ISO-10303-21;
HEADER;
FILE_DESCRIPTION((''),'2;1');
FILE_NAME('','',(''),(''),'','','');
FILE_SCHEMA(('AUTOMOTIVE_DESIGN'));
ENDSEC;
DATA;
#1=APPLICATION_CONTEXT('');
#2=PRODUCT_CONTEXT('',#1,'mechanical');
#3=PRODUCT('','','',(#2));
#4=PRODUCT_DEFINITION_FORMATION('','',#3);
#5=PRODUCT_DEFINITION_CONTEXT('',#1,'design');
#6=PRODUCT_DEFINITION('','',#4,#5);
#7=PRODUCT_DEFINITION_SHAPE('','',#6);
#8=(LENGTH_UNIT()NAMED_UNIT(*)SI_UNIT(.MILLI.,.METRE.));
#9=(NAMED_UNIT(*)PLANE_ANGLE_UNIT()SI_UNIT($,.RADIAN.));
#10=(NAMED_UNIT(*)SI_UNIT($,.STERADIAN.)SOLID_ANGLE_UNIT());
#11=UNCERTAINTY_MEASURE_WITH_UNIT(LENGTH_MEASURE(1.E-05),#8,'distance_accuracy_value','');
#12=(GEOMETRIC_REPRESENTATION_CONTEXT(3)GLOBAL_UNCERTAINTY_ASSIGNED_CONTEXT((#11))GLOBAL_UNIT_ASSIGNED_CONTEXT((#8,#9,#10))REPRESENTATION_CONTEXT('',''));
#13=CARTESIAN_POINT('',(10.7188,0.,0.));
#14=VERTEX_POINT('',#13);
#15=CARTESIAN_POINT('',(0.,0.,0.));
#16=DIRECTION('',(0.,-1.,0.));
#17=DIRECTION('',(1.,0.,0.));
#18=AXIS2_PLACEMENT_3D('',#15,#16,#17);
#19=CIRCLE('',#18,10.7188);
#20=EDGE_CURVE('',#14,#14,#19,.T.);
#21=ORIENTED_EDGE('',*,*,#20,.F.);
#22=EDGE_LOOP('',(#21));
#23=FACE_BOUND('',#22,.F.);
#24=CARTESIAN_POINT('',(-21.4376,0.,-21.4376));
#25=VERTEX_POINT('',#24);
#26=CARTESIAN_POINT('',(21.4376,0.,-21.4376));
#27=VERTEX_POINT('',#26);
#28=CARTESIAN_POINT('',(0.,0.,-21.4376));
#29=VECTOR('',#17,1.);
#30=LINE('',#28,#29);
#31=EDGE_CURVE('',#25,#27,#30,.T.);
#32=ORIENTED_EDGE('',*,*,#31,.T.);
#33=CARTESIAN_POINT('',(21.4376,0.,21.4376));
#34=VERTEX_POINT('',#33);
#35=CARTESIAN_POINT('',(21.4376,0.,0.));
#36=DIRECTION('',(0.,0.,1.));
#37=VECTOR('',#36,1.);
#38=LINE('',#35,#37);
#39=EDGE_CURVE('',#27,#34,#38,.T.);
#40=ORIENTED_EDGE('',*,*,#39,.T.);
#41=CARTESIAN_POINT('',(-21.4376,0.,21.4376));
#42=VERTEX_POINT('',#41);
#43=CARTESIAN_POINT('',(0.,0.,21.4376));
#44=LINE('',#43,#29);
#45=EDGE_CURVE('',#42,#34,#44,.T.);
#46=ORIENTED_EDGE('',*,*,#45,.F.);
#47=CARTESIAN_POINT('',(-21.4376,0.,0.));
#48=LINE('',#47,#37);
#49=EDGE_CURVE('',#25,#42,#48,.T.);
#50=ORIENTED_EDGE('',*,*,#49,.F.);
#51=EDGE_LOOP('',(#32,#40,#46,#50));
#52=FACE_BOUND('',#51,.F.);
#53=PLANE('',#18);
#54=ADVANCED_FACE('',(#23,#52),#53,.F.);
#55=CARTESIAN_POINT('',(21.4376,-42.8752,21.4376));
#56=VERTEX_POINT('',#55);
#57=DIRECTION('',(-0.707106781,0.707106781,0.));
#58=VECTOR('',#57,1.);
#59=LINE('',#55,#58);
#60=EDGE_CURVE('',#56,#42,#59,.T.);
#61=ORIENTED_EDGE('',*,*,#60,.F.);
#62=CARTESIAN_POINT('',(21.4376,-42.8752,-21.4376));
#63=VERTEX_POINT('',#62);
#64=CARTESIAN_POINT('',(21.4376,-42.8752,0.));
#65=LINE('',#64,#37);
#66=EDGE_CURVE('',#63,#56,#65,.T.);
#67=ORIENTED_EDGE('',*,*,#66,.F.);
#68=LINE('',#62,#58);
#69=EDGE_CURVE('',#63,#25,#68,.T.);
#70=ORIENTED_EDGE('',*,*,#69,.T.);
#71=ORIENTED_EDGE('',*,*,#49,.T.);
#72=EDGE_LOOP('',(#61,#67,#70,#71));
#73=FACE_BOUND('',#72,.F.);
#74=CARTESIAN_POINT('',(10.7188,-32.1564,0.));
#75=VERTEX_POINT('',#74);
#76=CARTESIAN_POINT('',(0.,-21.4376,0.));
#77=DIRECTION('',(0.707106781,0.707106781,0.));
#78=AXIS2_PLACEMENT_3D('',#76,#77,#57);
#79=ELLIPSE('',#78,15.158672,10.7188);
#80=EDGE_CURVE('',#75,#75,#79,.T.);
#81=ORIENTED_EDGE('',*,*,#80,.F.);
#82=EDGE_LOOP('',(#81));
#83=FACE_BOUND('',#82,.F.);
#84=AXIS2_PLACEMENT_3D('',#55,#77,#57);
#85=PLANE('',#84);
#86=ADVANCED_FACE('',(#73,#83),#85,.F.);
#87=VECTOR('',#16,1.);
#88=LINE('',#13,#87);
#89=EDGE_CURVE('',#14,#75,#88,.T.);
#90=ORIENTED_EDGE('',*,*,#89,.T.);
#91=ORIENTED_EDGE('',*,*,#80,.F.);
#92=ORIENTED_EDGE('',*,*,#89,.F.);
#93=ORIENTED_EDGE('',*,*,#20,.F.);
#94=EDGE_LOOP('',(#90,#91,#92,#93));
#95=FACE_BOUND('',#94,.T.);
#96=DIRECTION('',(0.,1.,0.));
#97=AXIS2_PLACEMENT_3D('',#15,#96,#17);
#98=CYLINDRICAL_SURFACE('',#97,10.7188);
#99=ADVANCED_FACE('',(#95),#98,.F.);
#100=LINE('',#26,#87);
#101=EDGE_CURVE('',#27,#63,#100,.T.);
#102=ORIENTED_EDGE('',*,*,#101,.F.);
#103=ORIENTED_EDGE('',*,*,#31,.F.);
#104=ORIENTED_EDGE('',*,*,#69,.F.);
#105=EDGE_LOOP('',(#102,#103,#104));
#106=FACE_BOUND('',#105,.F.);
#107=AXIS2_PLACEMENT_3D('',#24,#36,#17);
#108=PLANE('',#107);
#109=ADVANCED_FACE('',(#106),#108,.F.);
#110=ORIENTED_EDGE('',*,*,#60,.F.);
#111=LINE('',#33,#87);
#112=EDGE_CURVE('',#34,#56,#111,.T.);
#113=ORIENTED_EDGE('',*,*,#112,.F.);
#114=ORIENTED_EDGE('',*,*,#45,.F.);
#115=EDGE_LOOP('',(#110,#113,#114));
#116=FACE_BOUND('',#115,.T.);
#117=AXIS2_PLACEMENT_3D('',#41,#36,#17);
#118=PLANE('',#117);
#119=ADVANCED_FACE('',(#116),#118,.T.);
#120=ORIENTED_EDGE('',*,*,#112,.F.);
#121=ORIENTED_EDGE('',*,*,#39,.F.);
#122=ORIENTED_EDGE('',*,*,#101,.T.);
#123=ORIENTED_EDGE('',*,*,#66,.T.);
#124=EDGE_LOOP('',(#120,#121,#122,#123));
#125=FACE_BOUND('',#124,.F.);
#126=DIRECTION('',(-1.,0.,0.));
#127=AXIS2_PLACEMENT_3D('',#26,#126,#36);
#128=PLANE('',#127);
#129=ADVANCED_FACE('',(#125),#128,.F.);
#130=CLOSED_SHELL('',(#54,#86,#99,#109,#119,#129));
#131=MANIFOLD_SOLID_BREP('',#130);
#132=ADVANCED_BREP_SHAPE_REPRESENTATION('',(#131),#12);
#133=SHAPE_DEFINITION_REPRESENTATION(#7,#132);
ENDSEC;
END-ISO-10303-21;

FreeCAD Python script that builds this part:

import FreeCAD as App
import Part
import Sketcher
from FreeCAD import Vector
Q = App.Units.Quantity


def add_polygon(sketch, points):
    """Adds a closed chain of lines whose ends are joined by coincident constraints."""
    first, n = sketch.GeometryCount, len(points)
    for a, b in zip(points, points[1:] + points[:1]):
        sketch.addGeometry(Part.LineSegment(App.Vector(*a, 0), App.Vector(*b, 0)), False)
    for i in range(n):
        sketch.addConstraint(Sketcher.Constraint("Coincident", first + i, 2, first + (i + 1) % n, 1))

doc = App.newDocument("Part")
body = doc.addObject("PartDesign::Body", "Body")

sketch1 = body.newObject("Sketcher::SketchObject", "Sketch")
sketch1.AttachmentSupport = (doc.getObject("XZ_Plane"), [""])
sketch1.MapMode = "FlatFace"
add_polygon(sketch1, [(-21, 21), (-21, -21), (21, -21), (21, 21)])
sketch1.addGeometry(Part.Circle(Vector(0, 0, 0), Vector(0, 0, 1), 11), False)
sketch1.addConstraint([
    Sketcher.Constraint("Vertical", 0),
    Sketcher.Constraint("Horizontal", 1),
    Sketcher.Constraint("Vertical", 2),
    Sketcher.Constraint("Horizontal", 3),
    Sketcher.Constraint("Coincident", 4, 3, -1, 1),
    Sketcher.Constraint("Symmetric", 0, 2, 2, 2, -1, 1),
    Sketcher.Constraint("Equal", 3, 0),
    Sketcher.Constraint("Diameter", 4, Q("0.844 in")),
    Sketcher.Constraint("DistanceX", 1, 1, 1, 2, Q("1.688 in")),
])
pad1 = body.newObject("PartDesign::Pad", "Pad")
pad1.Profile = sketch1
pad1.Length = Q("1.688 in")

sketch2 = body.newObject("Sketcher::SketchObject", "Sketch001")
sketch2.AttachmentSupport = (doc.getObject("XY_Plane"), [""])
sketch2.MapMode = "FlatFace"
sketch2.AttachmentOffset = App.Placement(Vector(0, 0, 0.844 * 25.4), App.Rotation())
add_polygon(sketch2, [(21, -43), (-21, 0), (-21, -43)])
sketch2.addConstraint([
    Sketcher.Constraint("Vertical", 1),
    Sketcher.Constraint("Horizontal", 2),
    Sketcher.Constraint("PointOnObject", 0, 2, -1),
    Sketcher.Constraint("Equal", 2, 1),
    Sketcher.Constraint("DistanceX", 2, 1, 2, 2, Q("1.688 in")),
    Sketcher.Constraint("DistanceX", 0, 2, -1, 1, Q("0.844 in")),
])
pocket1 = body.newObject("PartDesign::Pocket", "Pocket")
pocket1.Profile = sketch2
pocket1.Length = Q("1.688 in")

doc.recompute()
